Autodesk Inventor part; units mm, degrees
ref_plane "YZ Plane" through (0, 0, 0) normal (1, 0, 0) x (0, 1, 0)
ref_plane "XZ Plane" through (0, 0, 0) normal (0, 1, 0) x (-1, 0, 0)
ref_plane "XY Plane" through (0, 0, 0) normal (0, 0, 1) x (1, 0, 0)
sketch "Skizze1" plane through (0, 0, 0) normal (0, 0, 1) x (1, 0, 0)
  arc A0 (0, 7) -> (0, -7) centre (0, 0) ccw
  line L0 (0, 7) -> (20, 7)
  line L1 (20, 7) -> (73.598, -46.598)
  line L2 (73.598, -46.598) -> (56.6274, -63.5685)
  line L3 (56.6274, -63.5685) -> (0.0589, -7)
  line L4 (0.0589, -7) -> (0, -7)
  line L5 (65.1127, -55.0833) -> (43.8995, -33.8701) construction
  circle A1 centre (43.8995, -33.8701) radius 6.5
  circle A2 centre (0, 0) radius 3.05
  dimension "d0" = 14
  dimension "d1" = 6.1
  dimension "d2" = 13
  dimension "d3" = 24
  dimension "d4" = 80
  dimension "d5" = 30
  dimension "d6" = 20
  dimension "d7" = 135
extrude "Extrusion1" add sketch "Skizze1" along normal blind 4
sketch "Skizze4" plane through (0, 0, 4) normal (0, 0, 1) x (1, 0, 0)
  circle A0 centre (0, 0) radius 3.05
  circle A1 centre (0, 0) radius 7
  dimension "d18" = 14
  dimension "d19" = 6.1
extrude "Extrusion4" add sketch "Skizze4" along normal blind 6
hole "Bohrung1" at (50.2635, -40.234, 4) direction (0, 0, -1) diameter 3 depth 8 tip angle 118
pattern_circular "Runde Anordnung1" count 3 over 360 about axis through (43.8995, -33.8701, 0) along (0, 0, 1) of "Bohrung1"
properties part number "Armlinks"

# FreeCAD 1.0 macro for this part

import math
import FreeCAD as App
import Part
import Sketcher
Q = App.Units.Quantity

doc = App.newDocument("Part")
body = doc.addObject("PartDesign::Body", "Body")

sketch1 = body.newObject("Sketcher::SketchObject", "Sketch")
sketch1.AttachmentSupport = (doc.getObject("XY_Plane"), [""])
sketch1.MapMode = "FlatFace"
sketch1.addGeometry([
    Part.LineSegment(App.Vector(20, 7, 0), App.Vector(0, 7, 0)),
    Part.ArcOfCircle(Part.Circle(App.Vector(0, 0, 0), App.Vector(0, 0, 1), 7), math.radians(90), math.radians(270)),
    Part.LineSegment(App.Vector(0, -7, 0), App.Vector(0.06, -7, 0)),
    Part.LineSegment(App.Vector(0.06, -7, 0), App.Vector(56.63, -63.57, 0)),
    Part.LineSegment(App.Vector(56.63, -63.57, 0), App.Vector(73.6, -46.6, 0)),
    Part.LineSegment(App.Vector(73.6, -46.6, 0), App.Vector(20, 7, 0)),
    Part.Circle(App.Vector(43.9, -33.87, 0), App.Vector(0, 0, 1), 6.5),
    Part.Circle(App.Vector(0, 0, 0), App.Vector(0, 0, 1), 3.05),
], False)
sketch1.addConstraint([
    Sketcher.Constraint("Tangent", 0, 2, 1, 1),
    Sketcher.Constraint("Tangent", 1, 2, 2, 1),
    Sketcher.Constraint("Coincident", 2, 2, 3, 1),
    Sketcher.Constraint("Coincident", 3, 2, 4, 1),
    Sketcher.Constraint("Coincident", 4, 2, 5, 1),
    Sketcher.Constraint("Coincident", 5, 2, 0, 1),
    Sketcher.Constraint("Horizontal", 0),
    Sketcher.Constraint("Horizontal", 2),
    Sketcher.Constraint("Coincident", 1, 3, -1, 1),
    Sketcher.Constraint("Coincident", 7, 3, -1, 1),
    Sketcher.Constraint("Perpendicular", 3, 4),
    Sketcher.Constraint("Perpendicular", 4, 5),
    Sketcher.Constraint("Diameter", 6, 13.0),
    Sketcher.Constraint("Radius", 1, 7.0),
    Sketcher.Constraint("Diameter", 7, 6.1),
    Sketcher.Constraint("DistanceX", 0, 2, 0, 1, 20.0),
    Sketcher.Constraint("Angle", 5, Q("135 deg")),
    Sketcher.Constraint("Distance", 3, 80.0),
    Sketcher.Constraint("Distance", 4, 24.0),
    Sketcher.Constraint("DistanceY", 6, 3, -1, 1, 33.87),
    Sketcher.Constraint("DistanceX", 6, 3, 3, 2, 12.728),
])
pad1 = body.newObject("PartDesign::Pad", "Pad")
pad1.Profile = sketch1
pad1.Length = 4

sketch2 = body.newObject("Sketcher::SketchObject", "Sketch001")
sketch2.AttachmentSupport = (doc.getObject("XY_Plane"), [""])
sketch2.MapMode = "FlatFace"
sketch2.AttachmentOffset = App.Placement(App.Vector(0, 0, 4), App.Rotation())
sketch2.addGeometry([
    Part.Circle(App.Vector(0, 0, 0), App.Vector(0, 0, 1), 7),
    Part.Circle(App.Vector(0, 0, 0), App.Vector(0, 0, 1), 3),
], False)
sketch2.addConstraint([
    Sketcher.Constraint("Coincident", 0, 3, -1, 1),
    Sketcher.Constraint("Coincident", 1, 3, -1, 1),
    Sketcher.Constraint("Diameter", 0, 14.0),
    Sketcher.Constraint("Diameter", 1, 6.1),
])
pad2 = body.newObject("PartDesign::Pad", "Pad001")
pad2.Profile = sketch2
pad2.Length = 6

sketch3 = body.newObject("Sketcher::SketchObject", "Sketch002")
sketch3.AttachmentSupport = (doc.getObject("XY_Plane"), [""])
sketch3.MapMode = "FlatFace"
sketch3.AttachmentOffset = App.Placement(App.Vector(0, 0, 4), App.Rotation())
sketch3.addGeometry(Part.Circle(App.Vector(50.3, -40.2, 0), App.Vector(0, 0, 1), 1.5), False)
sketch3.addConstraint([
    Sketcher.Constraint("Diameter", 0, 3.0),
    Sketcher.Constraint("DistanceY", 0, 3, -1, 1, 40.234),
    Sketcher.Constraint("DistanceX", -1, 1, 0, 3, 50.2635),
])
doc.recompute()
hole = body.newObject("PartDesign::Hole", "Hole")
hole.Profile = sketch3
hole.ThreadType = "None"
hole.Diameter = 3
hole.DepthType = "Dimension"
hole.Depth = 8
hole.DrillPoint = "Angled"
hole.DrillPointAngle = 118
doc.recompute()

datumline = body.newObject("PartDesign::Line", "DatumLine")
datumline.Placement = App.Placement(App.Vector(43.8995, -33.8701, 0), App.Rotation(App.Vector(0, 0, 1), App.Vector(0, 0, 1)))
polarpattern = body.newObject("PartDesign::PolarPattern", "PolarPattern")
polarpattern.Originals = [hole]
polarpattern.Axis = (datumline, [""])
polarpattern.Angle = 360
polarpattern.Occurrences = 3
body.Tip = polarpattern

doc.recompute()
